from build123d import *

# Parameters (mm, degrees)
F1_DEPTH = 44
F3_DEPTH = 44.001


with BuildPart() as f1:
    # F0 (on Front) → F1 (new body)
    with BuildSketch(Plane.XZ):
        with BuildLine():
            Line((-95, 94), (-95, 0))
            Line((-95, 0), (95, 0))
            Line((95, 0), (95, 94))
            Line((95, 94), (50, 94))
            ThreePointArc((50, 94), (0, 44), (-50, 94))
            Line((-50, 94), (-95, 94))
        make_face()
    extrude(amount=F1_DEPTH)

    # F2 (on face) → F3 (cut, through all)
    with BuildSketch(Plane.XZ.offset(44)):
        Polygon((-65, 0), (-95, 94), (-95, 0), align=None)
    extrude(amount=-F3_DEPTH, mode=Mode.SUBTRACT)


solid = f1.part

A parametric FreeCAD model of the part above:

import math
import FreeCAD as App
import Part
import Sketcher
from FreeCAD import Vector


def add_polygon(sketch, points):
    """Adds a closed chain of lines whose ends are joined by coincident constraints."""
    first, n = sketch.GeometryCount, len(points)
    for a, b in zip(points, points[1:] + points[:1]):
        sketch.addGeometry(Part.LineSegment(App.Vector(*a, 0), App.Vector(*b, 0)), False)
    for i in range(n):
        sketch.addConstraint(Sketcher.Constraint("Coincident", first + i, 2, first + (i + 1) % n, 1))

doc = App.newDocument("Part")
body = doc.addObject("PartDesign::Body", "Body")

# Sketch on XZ plane
sketch1 = body.newObject("Sketcher::SketchObject", "Sketch")
sketch1.AttachmentSupport = (doc.getObject("XZ_Plane"), [""])
sketch1.MapMode = "FlatFace"
sketch1.addGeometry([
    Part.LineSegment(Vector(-95, 94, 0), Vector(-95, 0, 0)),  # 0
    Part.LineSegment(Vector(-95, 0, 0), Vector(95, 0, 0)),  # 1
    Part.LineSegment(Vector(95, 0, 0), Vector(95, 94, 0)),  # 2
    Part.LineSegment(Vector(95, 94, 0), Vector(50, 94, 0)),  # 3
    Part.ArcOfCircle(Part.Circle(Vector(0, 94, 0), Vector(0, 0, 1), 50), math.radians(180), math.radians(360)),  # 4
    Part.LineSegment(Vector(-50, 94, 0), Vector(-95, 94, 0)),  # 5
], False)
sketch1.addConstraint([
    Sketcher.Constraint("Coincident", 0, 2, 1, 1),
    Sketcher.Constraint("Coincident", 1, 2, 2, 1),
    Sketcher.Constraint("Coincident", 2, 2, 3, 1),
    Sketcher.Constraint("Coincident", 3, 2, 4, 2),
    Sketcher.Constraint("Coincident", 4, 1, 5, 1),
    Sketcher.Constraint("Coincident", 5, 2, 0, 1),
    Sketcher.Constraint("Vertical", 0),
    Sketcher.Constraint("Horizontal", 1),
    Sketcher.Constraint("Vertical", 2),
    Sketcher.Constraint("Horizontal", 3),
    Sketcher.Constraint("Horizontal", 5),
    Sketcher.Constraint("Symmetric", 0, 2, 1, 2, -1, 1),
    Sketcher.Constraint("Symmetric", 3, 2, 4, 1, -2),
    Sketcher.Constraint("Horizontal", 4, 3, 2, 2),
    Sketcher.Constraint("Radius", 4, 50.0),
    Sketcher.Constraint("DistanceX", 1, 1, 1, 2, 190.0),
    Sketcher.Constraint("DistanceY", 0, 2, 0, 1, 94.0),
])
pad1 = body.newObject("PartDesign::Pad", "Pad")
pad1.Profile = sketch1
pad1.Length = 44

# Sketch on XZ plane
sketch2 = body.newObject("Sketcher::SketchObject", "Sketch001")
sketch2.AttachmentSupport = (doc.getObject("XZ_Plane"), [""])
sketch2.MapMode = "FlatFace"
sketch2.AttachmentOffset = App.Placement(Vector(0, 0, 44), App.Rotation())
add_polygon(sketch2, [(-65, 0), (-95, 94), (-95, 0)])  # lines 0-2
sketch2.addConstraint([
    Sketcher.Constraint("Vertical", 1),
    Sketcher.Constraint("Horizontal", 2),
    Sketcher.Constraint("PointOnObject", 1, 2, -1),
    Sketcher.Constraint("DistanceX", 2, 1, 2, 2, 30.0),
    Sketcher.Constraint("DistanceY", 1, 2, 1, 1, 94.0),
    Sketcher.Constraint("DistanceX", 0, 2, -1, 1, 95.0),
])
pocket1 = body.newObject("PartDesign::Pocket", "Pocket")
pocket1.Profile = sketch2
pocket1.Type = "ThroughAll"

doc.recompute()
